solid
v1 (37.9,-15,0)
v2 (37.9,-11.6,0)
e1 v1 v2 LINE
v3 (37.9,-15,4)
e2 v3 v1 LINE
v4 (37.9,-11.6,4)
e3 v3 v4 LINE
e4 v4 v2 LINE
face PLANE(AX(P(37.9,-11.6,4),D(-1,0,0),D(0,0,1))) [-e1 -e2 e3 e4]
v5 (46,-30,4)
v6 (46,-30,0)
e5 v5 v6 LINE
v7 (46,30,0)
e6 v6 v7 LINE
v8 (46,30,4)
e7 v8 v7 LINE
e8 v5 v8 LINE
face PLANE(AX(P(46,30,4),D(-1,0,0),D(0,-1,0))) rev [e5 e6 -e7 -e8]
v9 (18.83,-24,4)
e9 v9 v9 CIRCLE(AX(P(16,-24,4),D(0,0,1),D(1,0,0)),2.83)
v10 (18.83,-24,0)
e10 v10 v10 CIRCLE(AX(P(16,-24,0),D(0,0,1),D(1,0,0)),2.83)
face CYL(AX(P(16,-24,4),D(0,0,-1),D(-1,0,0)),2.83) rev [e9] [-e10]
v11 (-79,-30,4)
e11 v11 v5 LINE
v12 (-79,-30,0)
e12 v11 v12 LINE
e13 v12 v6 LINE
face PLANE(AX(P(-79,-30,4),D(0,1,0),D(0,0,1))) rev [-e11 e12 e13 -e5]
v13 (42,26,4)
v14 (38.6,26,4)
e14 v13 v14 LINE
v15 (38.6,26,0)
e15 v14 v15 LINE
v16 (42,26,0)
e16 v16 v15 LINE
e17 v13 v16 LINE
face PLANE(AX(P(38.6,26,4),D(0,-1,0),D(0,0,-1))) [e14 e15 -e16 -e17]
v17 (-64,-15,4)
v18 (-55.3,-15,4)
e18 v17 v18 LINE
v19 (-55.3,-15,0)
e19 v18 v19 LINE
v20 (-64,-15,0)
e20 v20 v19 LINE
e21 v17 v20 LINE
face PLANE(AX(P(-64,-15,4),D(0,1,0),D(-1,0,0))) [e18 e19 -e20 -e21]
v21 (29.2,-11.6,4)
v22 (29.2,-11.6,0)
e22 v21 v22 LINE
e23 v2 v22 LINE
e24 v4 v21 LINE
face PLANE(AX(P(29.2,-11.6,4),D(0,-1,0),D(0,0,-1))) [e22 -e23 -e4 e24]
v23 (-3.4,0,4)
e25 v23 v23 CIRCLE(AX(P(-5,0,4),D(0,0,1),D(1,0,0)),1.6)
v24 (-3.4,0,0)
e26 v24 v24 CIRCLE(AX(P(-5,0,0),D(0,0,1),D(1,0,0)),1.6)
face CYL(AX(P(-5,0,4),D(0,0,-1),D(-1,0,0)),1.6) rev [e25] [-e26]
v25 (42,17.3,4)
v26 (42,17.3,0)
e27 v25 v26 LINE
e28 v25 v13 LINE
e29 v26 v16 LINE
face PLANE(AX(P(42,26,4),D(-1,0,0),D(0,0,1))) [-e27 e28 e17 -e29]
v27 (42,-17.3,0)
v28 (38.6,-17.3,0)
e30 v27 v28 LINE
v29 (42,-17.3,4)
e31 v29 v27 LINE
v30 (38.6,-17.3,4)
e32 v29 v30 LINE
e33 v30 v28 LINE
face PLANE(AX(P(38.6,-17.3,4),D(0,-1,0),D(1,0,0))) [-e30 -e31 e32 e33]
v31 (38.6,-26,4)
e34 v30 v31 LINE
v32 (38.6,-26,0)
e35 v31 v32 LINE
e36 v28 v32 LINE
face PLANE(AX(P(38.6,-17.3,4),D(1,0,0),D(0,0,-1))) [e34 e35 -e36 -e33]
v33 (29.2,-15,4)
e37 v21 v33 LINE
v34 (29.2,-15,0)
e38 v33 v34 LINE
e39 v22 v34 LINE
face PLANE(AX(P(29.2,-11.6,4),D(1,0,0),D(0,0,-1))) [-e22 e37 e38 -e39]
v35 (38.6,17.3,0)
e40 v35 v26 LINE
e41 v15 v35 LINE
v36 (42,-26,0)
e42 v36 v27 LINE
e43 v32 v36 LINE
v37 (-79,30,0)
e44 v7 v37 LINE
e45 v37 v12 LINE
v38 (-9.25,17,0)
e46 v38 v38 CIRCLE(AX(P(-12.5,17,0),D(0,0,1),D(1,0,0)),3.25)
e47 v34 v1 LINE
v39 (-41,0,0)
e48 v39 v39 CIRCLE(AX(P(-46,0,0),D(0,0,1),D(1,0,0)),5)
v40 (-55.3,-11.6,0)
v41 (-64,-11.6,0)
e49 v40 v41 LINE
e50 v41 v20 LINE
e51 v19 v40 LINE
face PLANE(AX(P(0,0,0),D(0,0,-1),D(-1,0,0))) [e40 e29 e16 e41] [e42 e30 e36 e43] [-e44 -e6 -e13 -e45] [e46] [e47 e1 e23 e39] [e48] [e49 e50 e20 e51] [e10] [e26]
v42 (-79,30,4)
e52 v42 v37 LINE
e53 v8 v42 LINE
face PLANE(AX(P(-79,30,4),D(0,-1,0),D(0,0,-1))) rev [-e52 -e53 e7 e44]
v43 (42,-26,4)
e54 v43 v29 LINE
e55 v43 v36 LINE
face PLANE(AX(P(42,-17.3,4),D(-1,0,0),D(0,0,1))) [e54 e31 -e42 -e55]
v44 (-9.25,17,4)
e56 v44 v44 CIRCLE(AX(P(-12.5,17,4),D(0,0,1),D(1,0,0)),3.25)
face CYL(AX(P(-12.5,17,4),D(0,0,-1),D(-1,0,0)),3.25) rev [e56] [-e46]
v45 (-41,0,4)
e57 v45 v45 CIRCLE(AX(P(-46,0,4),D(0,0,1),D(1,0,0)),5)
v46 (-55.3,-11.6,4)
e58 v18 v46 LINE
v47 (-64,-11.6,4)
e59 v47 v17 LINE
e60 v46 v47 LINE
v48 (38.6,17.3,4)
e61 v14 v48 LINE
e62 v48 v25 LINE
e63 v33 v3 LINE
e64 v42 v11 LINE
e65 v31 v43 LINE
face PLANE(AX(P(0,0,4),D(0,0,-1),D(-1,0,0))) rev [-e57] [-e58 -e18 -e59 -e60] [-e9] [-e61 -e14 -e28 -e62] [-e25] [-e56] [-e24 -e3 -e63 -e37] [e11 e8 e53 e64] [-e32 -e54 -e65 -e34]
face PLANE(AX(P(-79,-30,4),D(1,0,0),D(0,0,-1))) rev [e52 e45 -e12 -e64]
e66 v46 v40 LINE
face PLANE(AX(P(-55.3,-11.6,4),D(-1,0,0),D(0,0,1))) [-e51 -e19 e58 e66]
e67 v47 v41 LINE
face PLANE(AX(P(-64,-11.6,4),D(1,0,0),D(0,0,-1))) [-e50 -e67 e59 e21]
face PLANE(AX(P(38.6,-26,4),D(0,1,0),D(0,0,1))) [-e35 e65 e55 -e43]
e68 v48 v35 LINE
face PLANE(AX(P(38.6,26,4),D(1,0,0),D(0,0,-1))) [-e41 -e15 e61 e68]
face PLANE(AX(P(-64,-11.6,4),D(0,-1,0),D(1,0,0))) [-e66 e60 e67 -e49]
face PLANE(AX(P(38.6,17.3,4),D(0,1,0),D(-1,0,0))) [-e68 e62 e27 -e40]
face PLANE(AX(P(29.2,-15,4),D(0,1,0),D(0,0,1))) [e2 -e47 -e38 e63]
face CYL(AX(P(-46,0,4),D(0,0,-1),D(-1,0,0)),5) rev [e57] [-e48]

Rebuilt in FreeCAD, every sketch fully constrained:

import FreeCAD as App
import Part
import Sketcher
from FreeCAD import Vector

doc = App.newDocument("Part")
body = doc.addObject("PartDesign::Body", "Body")

# Sketch on XY plane
sketch1 = body.newObject("Sketcher::SketchObject", "Sketch")
sketch1.AttachmentSupport = (doc.getObject("XY_Plane"), [""])
sketch1.MapMode = "FlatFace"
sketch1.addGeometry([
    Part.LineSegment(Vector(-79, 30, 0), Vector(-79, -30, 0)),  # 0
    Part.LineSegment(Vector(-79, -30, 0), Vector(42, -30, 0)),  # 1
    Part.LineSegment(Vector(42, -30, 0), Vector(42, 30, 0)),  # 2
    Part.LineSegment(Vector(42, 30, 0), Vector(-79, 30, 0)),  # 3
    Part.LineSegment(Vector(-55.3, -15, 0), Vector(-64, -15, 0)),  # 4
    Part.LineSegment(Vector(-64, -15, 0), Vector(-64, -11.6, 0)),  # 5
    Part.LineSegment(Vector(-64, -11.6, 0), Vector(-55.3, -11.6, 0)),  # 6
    Part.LineSegment(Vector(-55.3, -11.6, 0), Vector(-55.3, -15, 0)),  # 7
    Part.Circle(Vector(16, -24, 0), Vector(0, 0, 1), 2.83),  # 8
    Part.LineSegment(Vector(37.9, -15, 0), Vector(29.2, -15, 0)),  # 9
    Part.LineSegment(Vector(29.2, -15, 0), Vector(29.2, -11.6, 0)),  # 10
    Part.LineSegment(Vector(29.2, -11.6, 0), Vector(37.9, -11.6, 0)),  # 11
    Part.LineSegment(Vector(37.9, -11.6, 0), Vector(37.9, -15, 0)),  # 12
    Part.Circle(Vector(-46, 0, 0), Vector(0, 0, 1), 5),  # 13
    Part.Circle(Vector(-5, 0, 0), Vector(0, 0, 1), 1.6),  # 14
    Part.Circle(Vector(-12.5, 17, 0), Vector(0, 0, 1), 3.25),  # 15
], False)
sketch1.addConstraint([
    Sketcher.Constraint("Coincident", 0, 2, 1, 1),
    Sketcher.Constraint("Coincident", 1, 2, 2, 1),
    Sketcher.Constraint("Coincident", 2, 2, 3, 1),
    Sketcher.Constraint("Coincident", 3, 2, 0, 1),
    Sketcher.Constraint("Coincident", 4, 2, 5, 1),
    Sketcher.Constraint("Coincident", 5, 2, 6, 1),
    Sketcher.Constraint("Coincident", 6, 2, 7, 1),
    Sketcher.Constraint("Coincident", 7, 2, 4, 1),
    Sketcher.Constraint("Coincident", 9, 2, 10, 1),
    Sketcher.Constraint("Coincident", 10, 2, 11, 1),
    Sketcher.Constraint("Coincident", 11, 2, 12, 1),
    Sketcher.Constraint("Coincident", 12, 2, 9, 1),
    Sketcher.Constraint("Vertical", 0),
    Sketcher.Constraint("Horizontal", 1),
    Sketcher.Constraint("Vertical", 2),
    Sketcher.Constraint("Horizontal", 3),
    Sketcher.Constraint("Horizontal", 4),
    Sketcher.Constraint("Vertical", 5),
    Sketcher.Constraint("Horizontal", 6),
    Sketcher.Constraint("Vertical", 7),
    Sketcher.Constraint("Horizontal", 9),
    Sketcher.Constraint("Vertical", 10),
    Sketcher.Constraint("Horizontal", 11),
    Sketcher.Constraint("Vertical", 12),
    Sketcher.Constraint("PointOnObject", 13, 3, -1),
    Sketcher.Constraint("PointOnObject", 14, 3, -1),
    Sketcher.Constraint("Horizontal", 7, 2, 9, 2),
    Sketcher.Constraint("Horizontal", 6, 2, 10, 2),
    Sketcher.Constraint("Equal", 6, 9),
    Sketcher.Constraint("Diameter", 13, 10.0),
    Sketcher.Constraint("Diameter", 14, 3.2),
    Sketcher.Constraint("Diameter", 15, 6.5),
    Sketcher.Constraint("Diameter", 8, 5.66),
    Sketcher.Constraint("DistanceX", 1, 1, 1, 2, 121.0),
    Sketcher.Constraint("DistanceY", 0, 2, 0, 1, 60.0),
    Sketcher.Constraint("DistanceX", 4, 2, 4, 1, 8.7),
    Sketcher.Constraint("DistanceY", 5, 1, 5, 2, 3.4),
    Sketcher.Constraint("DistanceX", -1, 1, 8, 3, 16.0),
    Sketcher.Constraint("DistanceY", 8, 3, -1, 1, 24.0),
    Sketcher.Constraint("DistanceX", 13, 3, -1, 1, 46.0),
    Sketcher.Constraint("DistanceX", 14, 3, -1, 1, 5.0),
    Sketcher.Constraint("DistanceY", -1, 1, 15, 3, 17.0),
    Sketcher.Constraint("DistanceX", 0, 2, -1, 1, 79.0),
    Sketcher.Constraint("DistanceY", 0, 2, -1, 1, 30.0),
    Sketcher.Constraint("DistanceX", 4, 2, -1, 1, 64.0),
    Sketcher.Constraint("DistanceY", 4, 2, -1, 1, 15.0),
    Sketcher.Constraint("DistanceX", 15, 3, -1, 1, 12.5),
    Sketcher.Constraint("DistanceX", -1, 1, 9, 2, 29.2),
])
pad1 = body.newObject("PartDesign::Pad", "Pad")
pad1.Profile = sketch1
pad1.Length = 4

# Sketch on XY plane
sketch2 = body.newObject("Sketcher::SketchObject", "Sketch001")
sketch2.AttachmentSupport = (doc.getObject("XY_Plane"), [""])
sketch2.MapMode = "FlatFace"
sketch2.addGeometry([
    Part.LineSegment(Vector(42, 30, 0), Vector(42, -30, 0)),
    Part.LineSegment(Vector(42, -30, 0), Vector(46, -30, 0)),
    Part.LineSegment(Vector(46, -30, 0), Vector(46, 30, 0)),
    Part.LineSegment(Vector(46, 30, 0), Vector(42, 30, 0)),
], False)
sketch2.addConstraint([
    Sketcher.Constraint("Coincident", 0, 2, 1, 1),
    Sketcher.Constraint("Coincident", 1, 2, 2, 1),
    Sketcher.Constraint("Coincident", 2, 2, 3, 1),
    Sketcher.Constraint("Coincident", 3, 2, 0, 1),
    Sketcher.Constraint("Vertical", 0),
    Sketcher.Constraint("Horizontal", 1),
    Sketcher.Constraint("Vertical", 2),
    Sketcher.Constraint("Horizontal", 3),
    Sketcher.Constraint("DistanceX", 1, 1, 1, 2, 4.0),
    Sketcher.Constraint("DistanceY", 0, 2, 0, 1, 60.0),
    Sketcher.Constraint("DistanceX", -1, 1, 0, 2, 42.0),
    Sketcher.Constraint("DistanceY", 0, 2, -1, 1, 30.0),
])
pad2 = body.newObject("PartDesign::Pad", "Pad001")
pad2.Profile = sketch2
pad2.Length = 4

# Sketch on XY plane
sketch3 = body.newObject("Sketcher::SketchObject", "Sketch002")
sketch3.AttachmentSupport = (doc.getObject("XY_Plane"), [""])
sketch3.MapMode = "FlatFace"
sketch3.addGeometry([
    Part.LineSegment(Vector(38.6, 26, 0), Vector(38.6, 17.3, 0)),  # 0
    Part.LineSegment(Vector(38.6, 17.3, 0), Vector(42, 17.3, 0)),  # 1
    Part.LineSegment(Vector(42, 17.3, 0), Vector(42, 26, 0)),  # 2
    Part.LineSegment(Vector(42, 26, 0), Vector(38.6, 26, 0)),  # 3
    Part.LineSegment(Vector(38.6, -17.3, 0), Vector(38.6, -26, 0)),  # 4
    Part.LineSegment(Vector(38.6, -26, 0), Vector(42, -26, 0)),  # 5
    Part.LineSegment(Vector(42, -26, 0), Vector(42, -17.3, 0)),  # 6
    Part.LineSegment(Vector(42, -17.3, 0), Vector(38.6, -17.3, 0)),  # 7
], False)
sketch3.addConstraint([
    Sketcher.Constraint("Coincident", 0, 2, 1, 1),
    Sketcher.Constraint("Coincident", 1, 2, 2, 1),
    Sketcher.Constraint("Coincident", 2, 2, 3, 1),
    Sketcher.Constraint("Coincident", 3, 2, 0, 1),
    Sketcher.Constraint("Coincident", 4, 2, 5, 1),
    Sketcher.Constraint("Coincident", 5, 2, 6, 1),
    Sketcher.Constraint("Coincident", 6, 2, 7, 1),
    Sketcher.Constraint("Coincident", 7, 2, 4, 1),
    Sketcher.Constraint("Vertical", 0),
    Sketcher.Constraint("Horizontal", 1),
    Sketcher.Constraint("Vertical", 2),
    Sketcher.Constraint("Horizontal", 3),
    Sketcher.Constraint("Vertical", 4),
    Sketcher.Constraint("Horizontal", 5),
    Sketcher.Constraint("Vertical", 6),
    Sketcher.Constraint("Horizontal", 7),
    Sketcher.Constraint("Symmetric", 3, 2, 4, 2, -1),
    Sketcher.Constraint("Symmetric", 1, 2, 6, 2, -1),
    Sketcher.Constraint("DistanceX", 1, 1, 1, 2, 3.4),
    Sketcher.Constraint("DistanceY", 0, 2, 0, 1, 8.7),
    Sketcher.Constraint("DistanceX", -1, 1, 1, 2, 42.0),
    Sketcher.Constraint("DistanceY", -1, 1, 2, 2, 26.0),
])
pocket1 = body.newObject("PartDesign::Pocket", "Pocket")
pocket1.Profile = sketch3
pocket1.Type = "ThroughAll"
pocket1.Midplane = True

doc.recompute()
